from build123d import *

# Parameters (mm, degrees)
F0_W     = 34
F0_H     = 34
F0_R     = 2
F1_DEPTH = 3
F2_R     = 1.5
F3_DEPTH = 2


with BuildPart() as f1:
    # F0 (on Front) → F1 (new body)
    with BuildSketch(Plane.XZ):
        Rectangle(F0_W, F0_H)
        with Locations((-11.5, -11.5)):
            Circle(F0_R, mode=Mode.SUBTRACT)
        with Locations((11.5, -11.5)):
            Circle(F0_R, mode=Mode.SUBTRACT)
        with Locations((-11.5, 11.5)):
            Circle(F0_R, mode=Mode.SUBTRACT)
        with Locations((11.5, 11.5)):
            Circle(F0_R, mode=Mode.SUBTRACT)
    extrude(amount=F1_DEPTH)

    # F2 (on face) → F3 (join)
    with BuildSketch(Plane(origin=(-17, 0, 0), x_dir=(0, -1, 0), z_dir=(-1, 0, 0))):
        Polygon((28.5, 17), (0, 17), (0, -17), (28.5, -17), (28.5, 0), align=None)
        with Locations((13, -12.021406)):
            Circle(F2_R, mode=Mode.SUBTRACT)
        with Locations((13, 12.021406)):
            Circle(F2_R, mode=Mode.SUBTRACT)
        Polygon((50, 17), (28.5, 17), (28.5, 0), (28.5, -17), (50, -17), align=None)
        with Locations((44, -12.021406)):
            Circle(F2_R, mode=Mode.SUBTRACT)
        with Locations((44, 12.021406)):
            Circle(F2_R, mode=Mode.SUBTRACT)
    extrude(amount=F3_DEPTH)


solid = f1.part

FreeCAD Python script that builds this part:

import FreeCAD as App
import Part
import Sketcher
from FreeCAD import Vector
Q = App.Units.Quantity

doc = App.newDocument("Part")
body = doc.addObject("PartDesign::Body", "Body")

# Sketch on XZ plane
sketch1 = body.newObject("Sketcher::SketchObject", "Sketch")
sketch1.AttachmentSupport = (doc.getObject("XZ_Plane"), [""])
sketch1.MapMode = "FlatFace"
sketch1.addGeometry([
    Part.LineSegment(Vector(-17, 17, 0), Vector(-17, -17, 0)),  # 0
    Part.LineSegment(Vector(-17, -17, 0), Vector(17, -17, 0)),  # 1
    Part.LineSegment(Vector(17, -17, 0), Vector(17, 17, 0)),  # 2
    Part.LineSegment(Vector(17, 17, 0), Vector(-17, 17, 0)),  # 3
    Part.Circle(Vector(-11.5, -11.5, 0), Vector(0, 0, 1), 2),  # 4
    Part.Circle(Vector(11.5, -11.5, 0), Vector(0, 0, 1), 2),  # 5
    Part.Circle(Vector(-11.5, 11.5, 0), Vector(0, 0, 1), 2),  # 6
    Part.Circle(Vector(11.5, 11.5, 0), Vector(0, 0, 1), 2),  # 7
], False)
sketch1.addConstraint([
    Sketcher.Constraint("Coincident", 0, 2, 1, 1),
    Sketcher.Constraint("Coincident", 1, 2, 2, 1),
    Sketcher.Constraint("Coincident", 2, 2, 3, 1),
    Sketcher.Constraint("Coincident", 3, 2, 0, 1),
    Sketcher.Constraint("Vertical", 0),
    Sketcher.Constraint("Horizontal", 1),
    Sketcher.Constraint("Vertical", 2),
    Sketcher.Constraint("Horizontal", 3),
    Sketcher.Constraint("Equal", 4, 5),
    Sketcher.Constraint("Equal", 5, 6),
    Sketcher.Constraint("Equal", 6, 7),
    Sketcher.Constraint("Symmetric", 5, 3, 6, 3, -1, 1),
    Sketcher.Constraint("Symmetric", 4, 3, 7, 3, -1, 1),
    Sketcher.Constraint("Symmetric", 0, 2, 2, 2, -1, 1),
    Sketcher.Constraint("Symmetric", 4, 3, 5, 3, -2),
    Sketcher.Constraint("Equal", 3, 0),
    Sketcher.Constraint("Diameter", 4, Q("4 mm")),
    Sketcher.Constraint("DistanceX", 1, 1, 1, 2, Q("34 mm")),
    Sketcher.Constraint("DistanceX", 4, 3, 5, 3, Q("23 mm")),
    Sketcher.Constraint("DistanceY", 4, 3, 6, 3, Q("23 mm")),
])
pad1 = body.newObject("PartDesign::Pad", "Pad")
pad1.Profile = sketch1
pad1.Length = 3

# Sketch on YZ plane
sketch2 = body.newObject("Sketcher::SketchObject", "Sketch001")
sketch2.AttachmentSupport = (doc.getObject("YZ_Plane"), [""])
sketch2.MapMode = "FlatFace"
sketch2.AttachmentOffset = App.Placement(Vector(0, 0, -17), App.Rotation())
sketch2.addGeometry([
    Part.LineSegment(Vector(0, 17, 0), Vector(0, -17, 0)),  # 0
    Part.LineSegment(Vector(0, -17, 0), Vector(-50, -17, 0)),  # 1
    Part.LineSegment(Vector(-50, -17, 0), Vector(-50, 17, 0)),  # 2
    Part.LineSegment(Vector(-50, 17, 0), Vector(0, 17, 0)),  # 3
    Part.Circle(Vector(-13, -12, 0), Vector(0, 0, 1), 1.5),  # 4
    Part.Circle(Vector(-44, -12, 0), Vector(0, 0, 1), 1.5),  # 5
    Part.Circle(Vector(-13, 12, 0), Vector(0, 0, 1), 1.5),  # 6
    Part.Circle(Vector(-44, 12, 0), Vector(0, 0, 1), 1.5),  # 7
], False)
sketch2.addConstraint([
    Sketcher.Constraint("Coincident", 0, 2, 1, 1),
    Sketcher.Constraint("Coincident", 1, 2, 2, 1),
    Sketcher.Constraint("Coincident", 2, 2, 3, 1),
    Sketcher.Constraint("Coincident", 3, 2, 0, 1),
    Sketcher.Constraint("Vertical", 0),
    Sketcher.Constraint("Horizontal", 1),
    Sketcher.Constraint("Vertical", 2),
    Sketcher.Constraint("Horizontal", 3),
    Sketcher.Constraint("Equal", 4, 5),
    Sketcher.Constraint("Equal", 5, 6),
    Sketcher.Constraint("Equal", 6, 7),
    Sketcher.Constraint("Symmetric", 0, 2, 3, 2, -1, 1),
    Sketcher.Constraint("Symmetric", 4, 3, 6, 3, -1),
    Sketcher.Constraint("Symmetric", 5, 3, 7, 3, -1),
    Sketcher.Constraint("Horizontal", 4, 3, 5, 3),
    Sketcher.Constraint("Diameter", 4, Q("3 mm")),
    Sketcher.Constraint("DistanceX", 1, 2, 1, 1, Q("50 mm")),
    Sketcher.Constraint("DistanceY", 0, 2, 0, 1, Q("34 mm")),
    Sketcher.Constraint("DistanceX", 4, 3, -1, 1, Q("13 mm")),
    Sketcher.Constraint("DistanceX", 5, 3, -1, 1, Q("44 mm")),
    Sketcher.Constraint("DistanceY", 4, 3, -1, 1, Q("12.021406 mm")),
])
pad2 = body.newObject("PartDesign::Pad", "Pad001")
pad2.Profile = sketch2
pad2.Length = 2
pad2.Reversed = True

doc.recompute()
